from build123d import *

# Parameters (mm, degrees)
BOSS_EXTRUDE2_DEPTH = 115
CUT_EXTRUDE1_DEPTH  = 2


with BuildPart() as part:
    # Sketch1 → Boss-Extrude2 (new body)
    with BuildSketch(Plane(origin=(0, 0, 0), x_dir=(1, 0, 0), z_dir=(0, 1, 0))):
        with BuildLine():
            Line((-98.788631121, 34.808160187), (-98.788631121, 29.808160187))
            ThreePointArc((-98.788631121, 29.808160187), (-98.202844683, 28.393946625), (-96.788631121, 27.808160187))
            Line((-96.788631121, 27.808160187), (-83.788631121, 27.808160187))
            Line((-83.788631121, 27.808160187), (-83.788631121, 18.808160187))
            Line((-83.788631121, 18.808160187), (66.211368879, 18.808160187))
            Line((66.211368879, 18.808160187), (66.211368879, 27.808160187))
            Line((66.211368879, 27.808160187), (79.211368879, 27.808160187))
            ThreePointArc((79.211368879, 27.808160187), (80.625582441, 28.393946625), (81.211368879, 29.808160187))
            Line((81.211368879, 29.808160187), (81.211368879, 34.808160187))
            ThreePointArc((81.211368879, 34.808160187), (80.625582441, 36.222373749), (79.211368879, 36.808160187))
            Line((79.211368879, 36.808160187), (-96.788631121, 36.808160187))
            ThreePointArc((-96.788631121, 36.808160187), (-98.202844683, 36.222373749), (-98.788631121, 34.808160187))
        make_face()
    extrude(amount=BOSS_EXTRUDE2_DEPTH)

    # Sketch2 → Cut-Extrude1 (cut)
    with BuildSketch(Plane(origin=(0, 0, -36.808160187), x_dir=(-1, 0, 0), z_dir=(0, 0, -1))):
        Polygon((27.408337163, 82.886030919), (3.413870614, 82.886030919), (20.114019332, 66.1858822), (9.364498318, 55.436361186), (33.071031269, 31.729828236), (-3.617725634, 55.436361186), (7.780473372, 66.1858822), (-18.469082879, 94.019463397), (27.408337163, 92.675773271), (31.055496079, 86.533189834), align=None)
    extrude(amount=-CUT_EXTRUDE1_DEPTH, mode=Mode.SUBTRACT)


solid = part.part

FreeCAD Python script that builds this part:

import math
import FreeCAD as App
import Part
import Sketcher
from FreeCAD import Vector
Q = App.Units.Quantity

doc = App.newDocument("Part")
params = doc.addObject("Spreadsheet::Sheet", "Params")
for row, (alias, value) in enumerate([
    ("sketch1_radius", "2 mm"),
    ("sketch1_width", "13 mm"),
    ("sketch1_width2", "150 mm"),
    ("sketch1_height", "5 mm"),
    ("sketch1_height2", "9 mm"),
    ("pad1_length", "115 mm"),
    ("pocket1_length", "2 mm"),
], start=1):
    params.set(f"A{row}", alias)
    params.set(f"B{row}", "=" + value)
    params.setAlias(f"B{row}", alias)

body = doc.addObject("PartDesign::Body", "Body")

# Sketch on XZ plane
sketch1 = doc.addObject("Sketcher::SketchObject", "Sketch")
body.addObject(sketch1)
sketch1.AttachmentSupport = (doc.XZ_Plane, [""])
sketch1.MapMode = "FlatFace"
sketch1.addGeometry([
    Part.LineSegment(Vector(-98.788631, -34.80816, 0), Vector(-98.788631, -29.80816, 0)),  # 0
    Part.ArcOfCircle(Part.Circle(Vector(-96.788631, -29.80816, 0), Vector(0, 0, 1), 2), math.radians(90), math.radians(180)),  # 1
    Part.LineSegment(Vector(-96.788631, -27.80816, 0), Vector(-83.788631, -27.80816, 0)),  # 2
    Part.LineSegment(Vector(-83.788631, -27.80816, 0), Vector(-83.788631, -18.80816, 0)),  # 3
    Part.LineSegment(Vector(-83.788631, -18.80816, 0), Vector(66.211369, -18.80816, 0)),  # 4
    Part.LineSegment(Vector(66.211369, -18.80816, 0), Vector(66.211369, -27.80816, 0)),  # 5
    Part.LineSegment(Vector(66.211369, -27.80816, 0), Vector(79.211369, -27.80816, 0)),  # 6
    Part.ArcOfCircle(Part.Circle(Vector(79.211369, -29.80816, 0), Vector(0, 0, 1), 2), math.radians(0), math.radians(90)),  # 7
    Part.LineSegment(Vector(81.211369, -29.80816, 0), Vector(81.211369, -34.80816, 0)),  # 8
    Part.ArcOfCircle(Part.Circle(Vector(79.211369, -34.80816, 0), Vector(0, 0, 1), 2), math.radians(-90), math.radians(0)),  # 9
    Part.LineSegment(Vector(79.211369, -36.80816, 0), Vector(-96.788631, -36.80816, 0)),  # 10
    Part.ArcOfCircle(Part.Circle(Vector(-96.788631, -34.80816, 0), Vector(0, 0, 1), 2), math.radians(-180), math.radians(-90)),  # 11
], False)
sketch1.addConstraint([
    Sketcher.Constraint("Tangent", 0, 2, 1, 2),
    Sketcher.Constraint("Tangent", 1, 1, 2, 1),
    Sketcher.Constraint("Coincident", 2, 2, 3, 1),
    Sketcher.Constraint("Coincident", 3, 2, 4, 1),
    Sketcher.Constraint("Coincident", 4, 2, 5, 1),
    Sketcher.Constraint("Coincident", 5, 2, 6, 1),
    Sketcher.Constraint("Tangent", 6, 2, 7, 2),
    Sketcher.Constraint("Tangent", 7, 1, 8, 1),
    Sketcher.Constraint("Tangent", 8, 2, 9, 2),
    Sketcher.Constraint("Tangent", 9, 1, 10, 1),
    Sketcher.Constraint("Tangent", 10, 2, 11, 2),
    Sketcher.Constraint("Tangent", 11, 1, 0, 1),
    Sketcher.Constraint("Vertical", 0),
    Sketcher.Constraint("Horizontal", 2),
    Sketcher.Constraint("Vertical", 3),
    Sketcher.Constraint("Horizontal", 4),
    Sketcher.Constraint("Vertical", 5),
    Sketcher.Constraint("Horizontal", 6),
    Sketcher.Constraint("Vertical", 8),
    Sketcher.Constraint("Horizontal", 10),
    Sketcher.Constraint("Equal", 1, 7),
    Sketcher.Constraint("Equal", 7, 9),
    Sketcher.Constraint("Equal", 9, 11),
    Sketcher.Constraint("Horizontal", 1, 3, 7, 3),
    Sketcher.Constraint("Equal", 2, 6),
    Sketcher.Constraint("Radius", 1, Q("2 mm")),
    Sketcher.Constraint("DistanceX", 2, 1, 2, 2, Q("13 mm")),
    Sketcher.Constraint("DistanceX", 4, 1, 4, 2, Q("150 mm")),
    Sketcher.Constraint("DistanceY", 0, 1, 0, 2, Q("5 mm")),
    Sketcher.Constraint("DistanceY", 3, 1, 3, 2, Q("9 mm")),
    Sketcher.Constraint("DistanceX", 1, 3, -1, 1, Q("96.788631 mm")),
    Sketcher.Constraint("DistanceY", 1, 3, -1, 1, Q("29.80816 mm")),
])
sketch1.setExpression("Constraints[25]", "Params.sketch1_radius")
sketch1.setExpression("Constraints[26]", "Params.sketch1_width")
sketch1.setExpression("Constraints[27]", "Params.sketch1_width2")
sketch1.setExpression("Constraints[28]", "Params.sketch1_height")
sketch1.setExpression("Constraints[29]", "Params.sketch1_height2")
pad1 = doc.addObject("PartDesign::Pad", "Pad")
body.addObject(pad1)
pad1.Profile = sketch1
pad1.setExpression("Length", "Params.pad1_length")
pad1.Reversed = True

# Sketch on XY plane
sketch2 = doc.addObject("Sketcher::SketchObject", "Sketch001")
body.addObject(sketch2)
sketch2.AttachmentSupport = (doc.XY_Plane, [""])
sketch2.MapMode = "FlatFace"
sketch2.AttachmentOffset = App.Placement(Vector(0, 0, -36.80816), App.Rotation())
sketch2.addGeometry([
    Part.LineSegment(Vector(-3.413871, 82.886031, 0), Vector(-27.408337, 82.886031, 0)),  # 0
    Part.LineSegment(Vector(-27.408337, 82.886031, 0), Vector(-31.055496, 86.53319, 0)),  # 1
    Part.LineSegment(Vector(-31.055496, 86.53319, 0), Vector(-27.408337, 92.675773, 0)),  # 2
    Part.LineSegment(Vector(-27.408337, 92.675773, 0), Vector(18.469083, 94.019463, 0)),  # 3
    Part.LineSegment(Vector(18.469083, 94.019463, 0), Vector(-7.780473, 66.185882, 0)),  # 4
    Part.LineSegment(Vector(-7.780473, 66.185882, 0), Vector(3.617726, 55.436361, 0)),  # 5
    Part.LineSegment(Vector(3.617726, 55.436361, 0), Vector(-33.071031, 31.729828, 0)),  # 6
    Part.LineSegment(Vector(-33.071031, 31.729828, 0), Vector(-9.364498, 55.436361, 0)),  # 7
    Part.LineSegment(Vector(-9.364498, 55.436361, 0), Vector(-20.114019, 66.185882, 0)),  # 8
    Part.LineSegment(Vector(-20.114019, 66.185882, 0), Vector(-3.413871, 82.886031, 0)),  # 9
], False)
sketch2.addConstraint([
    Sketcher.Constraint("Coincident", 0, 2, 1, 1),
    Sketcher.Constraint("Coincident", 1, 2, 2, 1),
    Sketcher.Constraint("Coincident", 2, 2, 3, 1),
    Sketcher.Constraint("Coincident", 3, 2, 4, 1),
    Sketcher.Constraint("Coincident", 4, 2, 5, 1),
    Sketcher.Constraint("Coincident", 5, 2, 6, 1),
    Sketcher.Constraint("Coincident", 6, 2, 7, 1),
    Sketcher.Constraint("Coincident", 7, 2, 8, 1),
    Sketcher.Constraint("Coincident", 8, 2, 9, 1),
    Sketcher.Constraint("Coincident", 9, 2, 0, 1),
    Sketcher.Constraint("Horizontal", 0),
    Sketcher.Constraint("Perpendicular", 4, 5),
    Sketcher.Constraint("Perpendicular", 1, 7),
    Sketcher.Constraint("Perpendicular", 7, 8),
    Sketcher.Constraint("Perpendicular", 8, 9),
    Sketcher.Constraint("Horizontal", 5, 2, 7, 2),
    Sketcher.Constraint("Horizontal", 4, 2, 8, 2),
    Sketcher.Constraint("Vertical", 0, 2, 2, 2),
    Sketcher.Constraint("Angle", 1, Q("135 deg")),
    Sketcher.Constraint("Distance", 6, Q("43.681399 mm")),
    Sketcher.Constraint("Distance", 7, Q("33.5261 mm")),
    Sketcher.Constraint("DistanceX", 7, 2, -1, 1, Q("9.364498 mm")),
    Sketcher.Constraint("DistanceX", 4, 2, 5, 2, Q("11.398199 mm")),
    Sketcher.Constraint("Distance", 1, Q("5.157862 mm")),
    Sketcher.Constraint("Distance", 5, Q("15.667519 mm")),
    Sketcher.Constraint("DistanceX", 0, 2, 0, 1, Q("23.994467 mm")),
    Sketcher.Constraint("DistanceY", -1, 1, 0, 2, Q("82.886031 mm")),
    Sketcher.Constraint("DistanceY", -1, 1, 5, 2, Q("55.436361 mm")),
    Sketcher.Constraint("DistanceX", 2, 2, 3, 2, Q("45.87742 mm")),
    Sketcher.Constraint("DistanceY", 2, 2, 3, 2, Q("1.34369 mm")),
])
pocket1 = doc.addObject("PartDesign::Pocket", "Pocket")
body.addObject(pocket1)
pocket1.Profile = sketch2
pocket1.setExpression("Length", "Params.pocket1_length")
pocket1.Reversed = True

doc.recompute()
